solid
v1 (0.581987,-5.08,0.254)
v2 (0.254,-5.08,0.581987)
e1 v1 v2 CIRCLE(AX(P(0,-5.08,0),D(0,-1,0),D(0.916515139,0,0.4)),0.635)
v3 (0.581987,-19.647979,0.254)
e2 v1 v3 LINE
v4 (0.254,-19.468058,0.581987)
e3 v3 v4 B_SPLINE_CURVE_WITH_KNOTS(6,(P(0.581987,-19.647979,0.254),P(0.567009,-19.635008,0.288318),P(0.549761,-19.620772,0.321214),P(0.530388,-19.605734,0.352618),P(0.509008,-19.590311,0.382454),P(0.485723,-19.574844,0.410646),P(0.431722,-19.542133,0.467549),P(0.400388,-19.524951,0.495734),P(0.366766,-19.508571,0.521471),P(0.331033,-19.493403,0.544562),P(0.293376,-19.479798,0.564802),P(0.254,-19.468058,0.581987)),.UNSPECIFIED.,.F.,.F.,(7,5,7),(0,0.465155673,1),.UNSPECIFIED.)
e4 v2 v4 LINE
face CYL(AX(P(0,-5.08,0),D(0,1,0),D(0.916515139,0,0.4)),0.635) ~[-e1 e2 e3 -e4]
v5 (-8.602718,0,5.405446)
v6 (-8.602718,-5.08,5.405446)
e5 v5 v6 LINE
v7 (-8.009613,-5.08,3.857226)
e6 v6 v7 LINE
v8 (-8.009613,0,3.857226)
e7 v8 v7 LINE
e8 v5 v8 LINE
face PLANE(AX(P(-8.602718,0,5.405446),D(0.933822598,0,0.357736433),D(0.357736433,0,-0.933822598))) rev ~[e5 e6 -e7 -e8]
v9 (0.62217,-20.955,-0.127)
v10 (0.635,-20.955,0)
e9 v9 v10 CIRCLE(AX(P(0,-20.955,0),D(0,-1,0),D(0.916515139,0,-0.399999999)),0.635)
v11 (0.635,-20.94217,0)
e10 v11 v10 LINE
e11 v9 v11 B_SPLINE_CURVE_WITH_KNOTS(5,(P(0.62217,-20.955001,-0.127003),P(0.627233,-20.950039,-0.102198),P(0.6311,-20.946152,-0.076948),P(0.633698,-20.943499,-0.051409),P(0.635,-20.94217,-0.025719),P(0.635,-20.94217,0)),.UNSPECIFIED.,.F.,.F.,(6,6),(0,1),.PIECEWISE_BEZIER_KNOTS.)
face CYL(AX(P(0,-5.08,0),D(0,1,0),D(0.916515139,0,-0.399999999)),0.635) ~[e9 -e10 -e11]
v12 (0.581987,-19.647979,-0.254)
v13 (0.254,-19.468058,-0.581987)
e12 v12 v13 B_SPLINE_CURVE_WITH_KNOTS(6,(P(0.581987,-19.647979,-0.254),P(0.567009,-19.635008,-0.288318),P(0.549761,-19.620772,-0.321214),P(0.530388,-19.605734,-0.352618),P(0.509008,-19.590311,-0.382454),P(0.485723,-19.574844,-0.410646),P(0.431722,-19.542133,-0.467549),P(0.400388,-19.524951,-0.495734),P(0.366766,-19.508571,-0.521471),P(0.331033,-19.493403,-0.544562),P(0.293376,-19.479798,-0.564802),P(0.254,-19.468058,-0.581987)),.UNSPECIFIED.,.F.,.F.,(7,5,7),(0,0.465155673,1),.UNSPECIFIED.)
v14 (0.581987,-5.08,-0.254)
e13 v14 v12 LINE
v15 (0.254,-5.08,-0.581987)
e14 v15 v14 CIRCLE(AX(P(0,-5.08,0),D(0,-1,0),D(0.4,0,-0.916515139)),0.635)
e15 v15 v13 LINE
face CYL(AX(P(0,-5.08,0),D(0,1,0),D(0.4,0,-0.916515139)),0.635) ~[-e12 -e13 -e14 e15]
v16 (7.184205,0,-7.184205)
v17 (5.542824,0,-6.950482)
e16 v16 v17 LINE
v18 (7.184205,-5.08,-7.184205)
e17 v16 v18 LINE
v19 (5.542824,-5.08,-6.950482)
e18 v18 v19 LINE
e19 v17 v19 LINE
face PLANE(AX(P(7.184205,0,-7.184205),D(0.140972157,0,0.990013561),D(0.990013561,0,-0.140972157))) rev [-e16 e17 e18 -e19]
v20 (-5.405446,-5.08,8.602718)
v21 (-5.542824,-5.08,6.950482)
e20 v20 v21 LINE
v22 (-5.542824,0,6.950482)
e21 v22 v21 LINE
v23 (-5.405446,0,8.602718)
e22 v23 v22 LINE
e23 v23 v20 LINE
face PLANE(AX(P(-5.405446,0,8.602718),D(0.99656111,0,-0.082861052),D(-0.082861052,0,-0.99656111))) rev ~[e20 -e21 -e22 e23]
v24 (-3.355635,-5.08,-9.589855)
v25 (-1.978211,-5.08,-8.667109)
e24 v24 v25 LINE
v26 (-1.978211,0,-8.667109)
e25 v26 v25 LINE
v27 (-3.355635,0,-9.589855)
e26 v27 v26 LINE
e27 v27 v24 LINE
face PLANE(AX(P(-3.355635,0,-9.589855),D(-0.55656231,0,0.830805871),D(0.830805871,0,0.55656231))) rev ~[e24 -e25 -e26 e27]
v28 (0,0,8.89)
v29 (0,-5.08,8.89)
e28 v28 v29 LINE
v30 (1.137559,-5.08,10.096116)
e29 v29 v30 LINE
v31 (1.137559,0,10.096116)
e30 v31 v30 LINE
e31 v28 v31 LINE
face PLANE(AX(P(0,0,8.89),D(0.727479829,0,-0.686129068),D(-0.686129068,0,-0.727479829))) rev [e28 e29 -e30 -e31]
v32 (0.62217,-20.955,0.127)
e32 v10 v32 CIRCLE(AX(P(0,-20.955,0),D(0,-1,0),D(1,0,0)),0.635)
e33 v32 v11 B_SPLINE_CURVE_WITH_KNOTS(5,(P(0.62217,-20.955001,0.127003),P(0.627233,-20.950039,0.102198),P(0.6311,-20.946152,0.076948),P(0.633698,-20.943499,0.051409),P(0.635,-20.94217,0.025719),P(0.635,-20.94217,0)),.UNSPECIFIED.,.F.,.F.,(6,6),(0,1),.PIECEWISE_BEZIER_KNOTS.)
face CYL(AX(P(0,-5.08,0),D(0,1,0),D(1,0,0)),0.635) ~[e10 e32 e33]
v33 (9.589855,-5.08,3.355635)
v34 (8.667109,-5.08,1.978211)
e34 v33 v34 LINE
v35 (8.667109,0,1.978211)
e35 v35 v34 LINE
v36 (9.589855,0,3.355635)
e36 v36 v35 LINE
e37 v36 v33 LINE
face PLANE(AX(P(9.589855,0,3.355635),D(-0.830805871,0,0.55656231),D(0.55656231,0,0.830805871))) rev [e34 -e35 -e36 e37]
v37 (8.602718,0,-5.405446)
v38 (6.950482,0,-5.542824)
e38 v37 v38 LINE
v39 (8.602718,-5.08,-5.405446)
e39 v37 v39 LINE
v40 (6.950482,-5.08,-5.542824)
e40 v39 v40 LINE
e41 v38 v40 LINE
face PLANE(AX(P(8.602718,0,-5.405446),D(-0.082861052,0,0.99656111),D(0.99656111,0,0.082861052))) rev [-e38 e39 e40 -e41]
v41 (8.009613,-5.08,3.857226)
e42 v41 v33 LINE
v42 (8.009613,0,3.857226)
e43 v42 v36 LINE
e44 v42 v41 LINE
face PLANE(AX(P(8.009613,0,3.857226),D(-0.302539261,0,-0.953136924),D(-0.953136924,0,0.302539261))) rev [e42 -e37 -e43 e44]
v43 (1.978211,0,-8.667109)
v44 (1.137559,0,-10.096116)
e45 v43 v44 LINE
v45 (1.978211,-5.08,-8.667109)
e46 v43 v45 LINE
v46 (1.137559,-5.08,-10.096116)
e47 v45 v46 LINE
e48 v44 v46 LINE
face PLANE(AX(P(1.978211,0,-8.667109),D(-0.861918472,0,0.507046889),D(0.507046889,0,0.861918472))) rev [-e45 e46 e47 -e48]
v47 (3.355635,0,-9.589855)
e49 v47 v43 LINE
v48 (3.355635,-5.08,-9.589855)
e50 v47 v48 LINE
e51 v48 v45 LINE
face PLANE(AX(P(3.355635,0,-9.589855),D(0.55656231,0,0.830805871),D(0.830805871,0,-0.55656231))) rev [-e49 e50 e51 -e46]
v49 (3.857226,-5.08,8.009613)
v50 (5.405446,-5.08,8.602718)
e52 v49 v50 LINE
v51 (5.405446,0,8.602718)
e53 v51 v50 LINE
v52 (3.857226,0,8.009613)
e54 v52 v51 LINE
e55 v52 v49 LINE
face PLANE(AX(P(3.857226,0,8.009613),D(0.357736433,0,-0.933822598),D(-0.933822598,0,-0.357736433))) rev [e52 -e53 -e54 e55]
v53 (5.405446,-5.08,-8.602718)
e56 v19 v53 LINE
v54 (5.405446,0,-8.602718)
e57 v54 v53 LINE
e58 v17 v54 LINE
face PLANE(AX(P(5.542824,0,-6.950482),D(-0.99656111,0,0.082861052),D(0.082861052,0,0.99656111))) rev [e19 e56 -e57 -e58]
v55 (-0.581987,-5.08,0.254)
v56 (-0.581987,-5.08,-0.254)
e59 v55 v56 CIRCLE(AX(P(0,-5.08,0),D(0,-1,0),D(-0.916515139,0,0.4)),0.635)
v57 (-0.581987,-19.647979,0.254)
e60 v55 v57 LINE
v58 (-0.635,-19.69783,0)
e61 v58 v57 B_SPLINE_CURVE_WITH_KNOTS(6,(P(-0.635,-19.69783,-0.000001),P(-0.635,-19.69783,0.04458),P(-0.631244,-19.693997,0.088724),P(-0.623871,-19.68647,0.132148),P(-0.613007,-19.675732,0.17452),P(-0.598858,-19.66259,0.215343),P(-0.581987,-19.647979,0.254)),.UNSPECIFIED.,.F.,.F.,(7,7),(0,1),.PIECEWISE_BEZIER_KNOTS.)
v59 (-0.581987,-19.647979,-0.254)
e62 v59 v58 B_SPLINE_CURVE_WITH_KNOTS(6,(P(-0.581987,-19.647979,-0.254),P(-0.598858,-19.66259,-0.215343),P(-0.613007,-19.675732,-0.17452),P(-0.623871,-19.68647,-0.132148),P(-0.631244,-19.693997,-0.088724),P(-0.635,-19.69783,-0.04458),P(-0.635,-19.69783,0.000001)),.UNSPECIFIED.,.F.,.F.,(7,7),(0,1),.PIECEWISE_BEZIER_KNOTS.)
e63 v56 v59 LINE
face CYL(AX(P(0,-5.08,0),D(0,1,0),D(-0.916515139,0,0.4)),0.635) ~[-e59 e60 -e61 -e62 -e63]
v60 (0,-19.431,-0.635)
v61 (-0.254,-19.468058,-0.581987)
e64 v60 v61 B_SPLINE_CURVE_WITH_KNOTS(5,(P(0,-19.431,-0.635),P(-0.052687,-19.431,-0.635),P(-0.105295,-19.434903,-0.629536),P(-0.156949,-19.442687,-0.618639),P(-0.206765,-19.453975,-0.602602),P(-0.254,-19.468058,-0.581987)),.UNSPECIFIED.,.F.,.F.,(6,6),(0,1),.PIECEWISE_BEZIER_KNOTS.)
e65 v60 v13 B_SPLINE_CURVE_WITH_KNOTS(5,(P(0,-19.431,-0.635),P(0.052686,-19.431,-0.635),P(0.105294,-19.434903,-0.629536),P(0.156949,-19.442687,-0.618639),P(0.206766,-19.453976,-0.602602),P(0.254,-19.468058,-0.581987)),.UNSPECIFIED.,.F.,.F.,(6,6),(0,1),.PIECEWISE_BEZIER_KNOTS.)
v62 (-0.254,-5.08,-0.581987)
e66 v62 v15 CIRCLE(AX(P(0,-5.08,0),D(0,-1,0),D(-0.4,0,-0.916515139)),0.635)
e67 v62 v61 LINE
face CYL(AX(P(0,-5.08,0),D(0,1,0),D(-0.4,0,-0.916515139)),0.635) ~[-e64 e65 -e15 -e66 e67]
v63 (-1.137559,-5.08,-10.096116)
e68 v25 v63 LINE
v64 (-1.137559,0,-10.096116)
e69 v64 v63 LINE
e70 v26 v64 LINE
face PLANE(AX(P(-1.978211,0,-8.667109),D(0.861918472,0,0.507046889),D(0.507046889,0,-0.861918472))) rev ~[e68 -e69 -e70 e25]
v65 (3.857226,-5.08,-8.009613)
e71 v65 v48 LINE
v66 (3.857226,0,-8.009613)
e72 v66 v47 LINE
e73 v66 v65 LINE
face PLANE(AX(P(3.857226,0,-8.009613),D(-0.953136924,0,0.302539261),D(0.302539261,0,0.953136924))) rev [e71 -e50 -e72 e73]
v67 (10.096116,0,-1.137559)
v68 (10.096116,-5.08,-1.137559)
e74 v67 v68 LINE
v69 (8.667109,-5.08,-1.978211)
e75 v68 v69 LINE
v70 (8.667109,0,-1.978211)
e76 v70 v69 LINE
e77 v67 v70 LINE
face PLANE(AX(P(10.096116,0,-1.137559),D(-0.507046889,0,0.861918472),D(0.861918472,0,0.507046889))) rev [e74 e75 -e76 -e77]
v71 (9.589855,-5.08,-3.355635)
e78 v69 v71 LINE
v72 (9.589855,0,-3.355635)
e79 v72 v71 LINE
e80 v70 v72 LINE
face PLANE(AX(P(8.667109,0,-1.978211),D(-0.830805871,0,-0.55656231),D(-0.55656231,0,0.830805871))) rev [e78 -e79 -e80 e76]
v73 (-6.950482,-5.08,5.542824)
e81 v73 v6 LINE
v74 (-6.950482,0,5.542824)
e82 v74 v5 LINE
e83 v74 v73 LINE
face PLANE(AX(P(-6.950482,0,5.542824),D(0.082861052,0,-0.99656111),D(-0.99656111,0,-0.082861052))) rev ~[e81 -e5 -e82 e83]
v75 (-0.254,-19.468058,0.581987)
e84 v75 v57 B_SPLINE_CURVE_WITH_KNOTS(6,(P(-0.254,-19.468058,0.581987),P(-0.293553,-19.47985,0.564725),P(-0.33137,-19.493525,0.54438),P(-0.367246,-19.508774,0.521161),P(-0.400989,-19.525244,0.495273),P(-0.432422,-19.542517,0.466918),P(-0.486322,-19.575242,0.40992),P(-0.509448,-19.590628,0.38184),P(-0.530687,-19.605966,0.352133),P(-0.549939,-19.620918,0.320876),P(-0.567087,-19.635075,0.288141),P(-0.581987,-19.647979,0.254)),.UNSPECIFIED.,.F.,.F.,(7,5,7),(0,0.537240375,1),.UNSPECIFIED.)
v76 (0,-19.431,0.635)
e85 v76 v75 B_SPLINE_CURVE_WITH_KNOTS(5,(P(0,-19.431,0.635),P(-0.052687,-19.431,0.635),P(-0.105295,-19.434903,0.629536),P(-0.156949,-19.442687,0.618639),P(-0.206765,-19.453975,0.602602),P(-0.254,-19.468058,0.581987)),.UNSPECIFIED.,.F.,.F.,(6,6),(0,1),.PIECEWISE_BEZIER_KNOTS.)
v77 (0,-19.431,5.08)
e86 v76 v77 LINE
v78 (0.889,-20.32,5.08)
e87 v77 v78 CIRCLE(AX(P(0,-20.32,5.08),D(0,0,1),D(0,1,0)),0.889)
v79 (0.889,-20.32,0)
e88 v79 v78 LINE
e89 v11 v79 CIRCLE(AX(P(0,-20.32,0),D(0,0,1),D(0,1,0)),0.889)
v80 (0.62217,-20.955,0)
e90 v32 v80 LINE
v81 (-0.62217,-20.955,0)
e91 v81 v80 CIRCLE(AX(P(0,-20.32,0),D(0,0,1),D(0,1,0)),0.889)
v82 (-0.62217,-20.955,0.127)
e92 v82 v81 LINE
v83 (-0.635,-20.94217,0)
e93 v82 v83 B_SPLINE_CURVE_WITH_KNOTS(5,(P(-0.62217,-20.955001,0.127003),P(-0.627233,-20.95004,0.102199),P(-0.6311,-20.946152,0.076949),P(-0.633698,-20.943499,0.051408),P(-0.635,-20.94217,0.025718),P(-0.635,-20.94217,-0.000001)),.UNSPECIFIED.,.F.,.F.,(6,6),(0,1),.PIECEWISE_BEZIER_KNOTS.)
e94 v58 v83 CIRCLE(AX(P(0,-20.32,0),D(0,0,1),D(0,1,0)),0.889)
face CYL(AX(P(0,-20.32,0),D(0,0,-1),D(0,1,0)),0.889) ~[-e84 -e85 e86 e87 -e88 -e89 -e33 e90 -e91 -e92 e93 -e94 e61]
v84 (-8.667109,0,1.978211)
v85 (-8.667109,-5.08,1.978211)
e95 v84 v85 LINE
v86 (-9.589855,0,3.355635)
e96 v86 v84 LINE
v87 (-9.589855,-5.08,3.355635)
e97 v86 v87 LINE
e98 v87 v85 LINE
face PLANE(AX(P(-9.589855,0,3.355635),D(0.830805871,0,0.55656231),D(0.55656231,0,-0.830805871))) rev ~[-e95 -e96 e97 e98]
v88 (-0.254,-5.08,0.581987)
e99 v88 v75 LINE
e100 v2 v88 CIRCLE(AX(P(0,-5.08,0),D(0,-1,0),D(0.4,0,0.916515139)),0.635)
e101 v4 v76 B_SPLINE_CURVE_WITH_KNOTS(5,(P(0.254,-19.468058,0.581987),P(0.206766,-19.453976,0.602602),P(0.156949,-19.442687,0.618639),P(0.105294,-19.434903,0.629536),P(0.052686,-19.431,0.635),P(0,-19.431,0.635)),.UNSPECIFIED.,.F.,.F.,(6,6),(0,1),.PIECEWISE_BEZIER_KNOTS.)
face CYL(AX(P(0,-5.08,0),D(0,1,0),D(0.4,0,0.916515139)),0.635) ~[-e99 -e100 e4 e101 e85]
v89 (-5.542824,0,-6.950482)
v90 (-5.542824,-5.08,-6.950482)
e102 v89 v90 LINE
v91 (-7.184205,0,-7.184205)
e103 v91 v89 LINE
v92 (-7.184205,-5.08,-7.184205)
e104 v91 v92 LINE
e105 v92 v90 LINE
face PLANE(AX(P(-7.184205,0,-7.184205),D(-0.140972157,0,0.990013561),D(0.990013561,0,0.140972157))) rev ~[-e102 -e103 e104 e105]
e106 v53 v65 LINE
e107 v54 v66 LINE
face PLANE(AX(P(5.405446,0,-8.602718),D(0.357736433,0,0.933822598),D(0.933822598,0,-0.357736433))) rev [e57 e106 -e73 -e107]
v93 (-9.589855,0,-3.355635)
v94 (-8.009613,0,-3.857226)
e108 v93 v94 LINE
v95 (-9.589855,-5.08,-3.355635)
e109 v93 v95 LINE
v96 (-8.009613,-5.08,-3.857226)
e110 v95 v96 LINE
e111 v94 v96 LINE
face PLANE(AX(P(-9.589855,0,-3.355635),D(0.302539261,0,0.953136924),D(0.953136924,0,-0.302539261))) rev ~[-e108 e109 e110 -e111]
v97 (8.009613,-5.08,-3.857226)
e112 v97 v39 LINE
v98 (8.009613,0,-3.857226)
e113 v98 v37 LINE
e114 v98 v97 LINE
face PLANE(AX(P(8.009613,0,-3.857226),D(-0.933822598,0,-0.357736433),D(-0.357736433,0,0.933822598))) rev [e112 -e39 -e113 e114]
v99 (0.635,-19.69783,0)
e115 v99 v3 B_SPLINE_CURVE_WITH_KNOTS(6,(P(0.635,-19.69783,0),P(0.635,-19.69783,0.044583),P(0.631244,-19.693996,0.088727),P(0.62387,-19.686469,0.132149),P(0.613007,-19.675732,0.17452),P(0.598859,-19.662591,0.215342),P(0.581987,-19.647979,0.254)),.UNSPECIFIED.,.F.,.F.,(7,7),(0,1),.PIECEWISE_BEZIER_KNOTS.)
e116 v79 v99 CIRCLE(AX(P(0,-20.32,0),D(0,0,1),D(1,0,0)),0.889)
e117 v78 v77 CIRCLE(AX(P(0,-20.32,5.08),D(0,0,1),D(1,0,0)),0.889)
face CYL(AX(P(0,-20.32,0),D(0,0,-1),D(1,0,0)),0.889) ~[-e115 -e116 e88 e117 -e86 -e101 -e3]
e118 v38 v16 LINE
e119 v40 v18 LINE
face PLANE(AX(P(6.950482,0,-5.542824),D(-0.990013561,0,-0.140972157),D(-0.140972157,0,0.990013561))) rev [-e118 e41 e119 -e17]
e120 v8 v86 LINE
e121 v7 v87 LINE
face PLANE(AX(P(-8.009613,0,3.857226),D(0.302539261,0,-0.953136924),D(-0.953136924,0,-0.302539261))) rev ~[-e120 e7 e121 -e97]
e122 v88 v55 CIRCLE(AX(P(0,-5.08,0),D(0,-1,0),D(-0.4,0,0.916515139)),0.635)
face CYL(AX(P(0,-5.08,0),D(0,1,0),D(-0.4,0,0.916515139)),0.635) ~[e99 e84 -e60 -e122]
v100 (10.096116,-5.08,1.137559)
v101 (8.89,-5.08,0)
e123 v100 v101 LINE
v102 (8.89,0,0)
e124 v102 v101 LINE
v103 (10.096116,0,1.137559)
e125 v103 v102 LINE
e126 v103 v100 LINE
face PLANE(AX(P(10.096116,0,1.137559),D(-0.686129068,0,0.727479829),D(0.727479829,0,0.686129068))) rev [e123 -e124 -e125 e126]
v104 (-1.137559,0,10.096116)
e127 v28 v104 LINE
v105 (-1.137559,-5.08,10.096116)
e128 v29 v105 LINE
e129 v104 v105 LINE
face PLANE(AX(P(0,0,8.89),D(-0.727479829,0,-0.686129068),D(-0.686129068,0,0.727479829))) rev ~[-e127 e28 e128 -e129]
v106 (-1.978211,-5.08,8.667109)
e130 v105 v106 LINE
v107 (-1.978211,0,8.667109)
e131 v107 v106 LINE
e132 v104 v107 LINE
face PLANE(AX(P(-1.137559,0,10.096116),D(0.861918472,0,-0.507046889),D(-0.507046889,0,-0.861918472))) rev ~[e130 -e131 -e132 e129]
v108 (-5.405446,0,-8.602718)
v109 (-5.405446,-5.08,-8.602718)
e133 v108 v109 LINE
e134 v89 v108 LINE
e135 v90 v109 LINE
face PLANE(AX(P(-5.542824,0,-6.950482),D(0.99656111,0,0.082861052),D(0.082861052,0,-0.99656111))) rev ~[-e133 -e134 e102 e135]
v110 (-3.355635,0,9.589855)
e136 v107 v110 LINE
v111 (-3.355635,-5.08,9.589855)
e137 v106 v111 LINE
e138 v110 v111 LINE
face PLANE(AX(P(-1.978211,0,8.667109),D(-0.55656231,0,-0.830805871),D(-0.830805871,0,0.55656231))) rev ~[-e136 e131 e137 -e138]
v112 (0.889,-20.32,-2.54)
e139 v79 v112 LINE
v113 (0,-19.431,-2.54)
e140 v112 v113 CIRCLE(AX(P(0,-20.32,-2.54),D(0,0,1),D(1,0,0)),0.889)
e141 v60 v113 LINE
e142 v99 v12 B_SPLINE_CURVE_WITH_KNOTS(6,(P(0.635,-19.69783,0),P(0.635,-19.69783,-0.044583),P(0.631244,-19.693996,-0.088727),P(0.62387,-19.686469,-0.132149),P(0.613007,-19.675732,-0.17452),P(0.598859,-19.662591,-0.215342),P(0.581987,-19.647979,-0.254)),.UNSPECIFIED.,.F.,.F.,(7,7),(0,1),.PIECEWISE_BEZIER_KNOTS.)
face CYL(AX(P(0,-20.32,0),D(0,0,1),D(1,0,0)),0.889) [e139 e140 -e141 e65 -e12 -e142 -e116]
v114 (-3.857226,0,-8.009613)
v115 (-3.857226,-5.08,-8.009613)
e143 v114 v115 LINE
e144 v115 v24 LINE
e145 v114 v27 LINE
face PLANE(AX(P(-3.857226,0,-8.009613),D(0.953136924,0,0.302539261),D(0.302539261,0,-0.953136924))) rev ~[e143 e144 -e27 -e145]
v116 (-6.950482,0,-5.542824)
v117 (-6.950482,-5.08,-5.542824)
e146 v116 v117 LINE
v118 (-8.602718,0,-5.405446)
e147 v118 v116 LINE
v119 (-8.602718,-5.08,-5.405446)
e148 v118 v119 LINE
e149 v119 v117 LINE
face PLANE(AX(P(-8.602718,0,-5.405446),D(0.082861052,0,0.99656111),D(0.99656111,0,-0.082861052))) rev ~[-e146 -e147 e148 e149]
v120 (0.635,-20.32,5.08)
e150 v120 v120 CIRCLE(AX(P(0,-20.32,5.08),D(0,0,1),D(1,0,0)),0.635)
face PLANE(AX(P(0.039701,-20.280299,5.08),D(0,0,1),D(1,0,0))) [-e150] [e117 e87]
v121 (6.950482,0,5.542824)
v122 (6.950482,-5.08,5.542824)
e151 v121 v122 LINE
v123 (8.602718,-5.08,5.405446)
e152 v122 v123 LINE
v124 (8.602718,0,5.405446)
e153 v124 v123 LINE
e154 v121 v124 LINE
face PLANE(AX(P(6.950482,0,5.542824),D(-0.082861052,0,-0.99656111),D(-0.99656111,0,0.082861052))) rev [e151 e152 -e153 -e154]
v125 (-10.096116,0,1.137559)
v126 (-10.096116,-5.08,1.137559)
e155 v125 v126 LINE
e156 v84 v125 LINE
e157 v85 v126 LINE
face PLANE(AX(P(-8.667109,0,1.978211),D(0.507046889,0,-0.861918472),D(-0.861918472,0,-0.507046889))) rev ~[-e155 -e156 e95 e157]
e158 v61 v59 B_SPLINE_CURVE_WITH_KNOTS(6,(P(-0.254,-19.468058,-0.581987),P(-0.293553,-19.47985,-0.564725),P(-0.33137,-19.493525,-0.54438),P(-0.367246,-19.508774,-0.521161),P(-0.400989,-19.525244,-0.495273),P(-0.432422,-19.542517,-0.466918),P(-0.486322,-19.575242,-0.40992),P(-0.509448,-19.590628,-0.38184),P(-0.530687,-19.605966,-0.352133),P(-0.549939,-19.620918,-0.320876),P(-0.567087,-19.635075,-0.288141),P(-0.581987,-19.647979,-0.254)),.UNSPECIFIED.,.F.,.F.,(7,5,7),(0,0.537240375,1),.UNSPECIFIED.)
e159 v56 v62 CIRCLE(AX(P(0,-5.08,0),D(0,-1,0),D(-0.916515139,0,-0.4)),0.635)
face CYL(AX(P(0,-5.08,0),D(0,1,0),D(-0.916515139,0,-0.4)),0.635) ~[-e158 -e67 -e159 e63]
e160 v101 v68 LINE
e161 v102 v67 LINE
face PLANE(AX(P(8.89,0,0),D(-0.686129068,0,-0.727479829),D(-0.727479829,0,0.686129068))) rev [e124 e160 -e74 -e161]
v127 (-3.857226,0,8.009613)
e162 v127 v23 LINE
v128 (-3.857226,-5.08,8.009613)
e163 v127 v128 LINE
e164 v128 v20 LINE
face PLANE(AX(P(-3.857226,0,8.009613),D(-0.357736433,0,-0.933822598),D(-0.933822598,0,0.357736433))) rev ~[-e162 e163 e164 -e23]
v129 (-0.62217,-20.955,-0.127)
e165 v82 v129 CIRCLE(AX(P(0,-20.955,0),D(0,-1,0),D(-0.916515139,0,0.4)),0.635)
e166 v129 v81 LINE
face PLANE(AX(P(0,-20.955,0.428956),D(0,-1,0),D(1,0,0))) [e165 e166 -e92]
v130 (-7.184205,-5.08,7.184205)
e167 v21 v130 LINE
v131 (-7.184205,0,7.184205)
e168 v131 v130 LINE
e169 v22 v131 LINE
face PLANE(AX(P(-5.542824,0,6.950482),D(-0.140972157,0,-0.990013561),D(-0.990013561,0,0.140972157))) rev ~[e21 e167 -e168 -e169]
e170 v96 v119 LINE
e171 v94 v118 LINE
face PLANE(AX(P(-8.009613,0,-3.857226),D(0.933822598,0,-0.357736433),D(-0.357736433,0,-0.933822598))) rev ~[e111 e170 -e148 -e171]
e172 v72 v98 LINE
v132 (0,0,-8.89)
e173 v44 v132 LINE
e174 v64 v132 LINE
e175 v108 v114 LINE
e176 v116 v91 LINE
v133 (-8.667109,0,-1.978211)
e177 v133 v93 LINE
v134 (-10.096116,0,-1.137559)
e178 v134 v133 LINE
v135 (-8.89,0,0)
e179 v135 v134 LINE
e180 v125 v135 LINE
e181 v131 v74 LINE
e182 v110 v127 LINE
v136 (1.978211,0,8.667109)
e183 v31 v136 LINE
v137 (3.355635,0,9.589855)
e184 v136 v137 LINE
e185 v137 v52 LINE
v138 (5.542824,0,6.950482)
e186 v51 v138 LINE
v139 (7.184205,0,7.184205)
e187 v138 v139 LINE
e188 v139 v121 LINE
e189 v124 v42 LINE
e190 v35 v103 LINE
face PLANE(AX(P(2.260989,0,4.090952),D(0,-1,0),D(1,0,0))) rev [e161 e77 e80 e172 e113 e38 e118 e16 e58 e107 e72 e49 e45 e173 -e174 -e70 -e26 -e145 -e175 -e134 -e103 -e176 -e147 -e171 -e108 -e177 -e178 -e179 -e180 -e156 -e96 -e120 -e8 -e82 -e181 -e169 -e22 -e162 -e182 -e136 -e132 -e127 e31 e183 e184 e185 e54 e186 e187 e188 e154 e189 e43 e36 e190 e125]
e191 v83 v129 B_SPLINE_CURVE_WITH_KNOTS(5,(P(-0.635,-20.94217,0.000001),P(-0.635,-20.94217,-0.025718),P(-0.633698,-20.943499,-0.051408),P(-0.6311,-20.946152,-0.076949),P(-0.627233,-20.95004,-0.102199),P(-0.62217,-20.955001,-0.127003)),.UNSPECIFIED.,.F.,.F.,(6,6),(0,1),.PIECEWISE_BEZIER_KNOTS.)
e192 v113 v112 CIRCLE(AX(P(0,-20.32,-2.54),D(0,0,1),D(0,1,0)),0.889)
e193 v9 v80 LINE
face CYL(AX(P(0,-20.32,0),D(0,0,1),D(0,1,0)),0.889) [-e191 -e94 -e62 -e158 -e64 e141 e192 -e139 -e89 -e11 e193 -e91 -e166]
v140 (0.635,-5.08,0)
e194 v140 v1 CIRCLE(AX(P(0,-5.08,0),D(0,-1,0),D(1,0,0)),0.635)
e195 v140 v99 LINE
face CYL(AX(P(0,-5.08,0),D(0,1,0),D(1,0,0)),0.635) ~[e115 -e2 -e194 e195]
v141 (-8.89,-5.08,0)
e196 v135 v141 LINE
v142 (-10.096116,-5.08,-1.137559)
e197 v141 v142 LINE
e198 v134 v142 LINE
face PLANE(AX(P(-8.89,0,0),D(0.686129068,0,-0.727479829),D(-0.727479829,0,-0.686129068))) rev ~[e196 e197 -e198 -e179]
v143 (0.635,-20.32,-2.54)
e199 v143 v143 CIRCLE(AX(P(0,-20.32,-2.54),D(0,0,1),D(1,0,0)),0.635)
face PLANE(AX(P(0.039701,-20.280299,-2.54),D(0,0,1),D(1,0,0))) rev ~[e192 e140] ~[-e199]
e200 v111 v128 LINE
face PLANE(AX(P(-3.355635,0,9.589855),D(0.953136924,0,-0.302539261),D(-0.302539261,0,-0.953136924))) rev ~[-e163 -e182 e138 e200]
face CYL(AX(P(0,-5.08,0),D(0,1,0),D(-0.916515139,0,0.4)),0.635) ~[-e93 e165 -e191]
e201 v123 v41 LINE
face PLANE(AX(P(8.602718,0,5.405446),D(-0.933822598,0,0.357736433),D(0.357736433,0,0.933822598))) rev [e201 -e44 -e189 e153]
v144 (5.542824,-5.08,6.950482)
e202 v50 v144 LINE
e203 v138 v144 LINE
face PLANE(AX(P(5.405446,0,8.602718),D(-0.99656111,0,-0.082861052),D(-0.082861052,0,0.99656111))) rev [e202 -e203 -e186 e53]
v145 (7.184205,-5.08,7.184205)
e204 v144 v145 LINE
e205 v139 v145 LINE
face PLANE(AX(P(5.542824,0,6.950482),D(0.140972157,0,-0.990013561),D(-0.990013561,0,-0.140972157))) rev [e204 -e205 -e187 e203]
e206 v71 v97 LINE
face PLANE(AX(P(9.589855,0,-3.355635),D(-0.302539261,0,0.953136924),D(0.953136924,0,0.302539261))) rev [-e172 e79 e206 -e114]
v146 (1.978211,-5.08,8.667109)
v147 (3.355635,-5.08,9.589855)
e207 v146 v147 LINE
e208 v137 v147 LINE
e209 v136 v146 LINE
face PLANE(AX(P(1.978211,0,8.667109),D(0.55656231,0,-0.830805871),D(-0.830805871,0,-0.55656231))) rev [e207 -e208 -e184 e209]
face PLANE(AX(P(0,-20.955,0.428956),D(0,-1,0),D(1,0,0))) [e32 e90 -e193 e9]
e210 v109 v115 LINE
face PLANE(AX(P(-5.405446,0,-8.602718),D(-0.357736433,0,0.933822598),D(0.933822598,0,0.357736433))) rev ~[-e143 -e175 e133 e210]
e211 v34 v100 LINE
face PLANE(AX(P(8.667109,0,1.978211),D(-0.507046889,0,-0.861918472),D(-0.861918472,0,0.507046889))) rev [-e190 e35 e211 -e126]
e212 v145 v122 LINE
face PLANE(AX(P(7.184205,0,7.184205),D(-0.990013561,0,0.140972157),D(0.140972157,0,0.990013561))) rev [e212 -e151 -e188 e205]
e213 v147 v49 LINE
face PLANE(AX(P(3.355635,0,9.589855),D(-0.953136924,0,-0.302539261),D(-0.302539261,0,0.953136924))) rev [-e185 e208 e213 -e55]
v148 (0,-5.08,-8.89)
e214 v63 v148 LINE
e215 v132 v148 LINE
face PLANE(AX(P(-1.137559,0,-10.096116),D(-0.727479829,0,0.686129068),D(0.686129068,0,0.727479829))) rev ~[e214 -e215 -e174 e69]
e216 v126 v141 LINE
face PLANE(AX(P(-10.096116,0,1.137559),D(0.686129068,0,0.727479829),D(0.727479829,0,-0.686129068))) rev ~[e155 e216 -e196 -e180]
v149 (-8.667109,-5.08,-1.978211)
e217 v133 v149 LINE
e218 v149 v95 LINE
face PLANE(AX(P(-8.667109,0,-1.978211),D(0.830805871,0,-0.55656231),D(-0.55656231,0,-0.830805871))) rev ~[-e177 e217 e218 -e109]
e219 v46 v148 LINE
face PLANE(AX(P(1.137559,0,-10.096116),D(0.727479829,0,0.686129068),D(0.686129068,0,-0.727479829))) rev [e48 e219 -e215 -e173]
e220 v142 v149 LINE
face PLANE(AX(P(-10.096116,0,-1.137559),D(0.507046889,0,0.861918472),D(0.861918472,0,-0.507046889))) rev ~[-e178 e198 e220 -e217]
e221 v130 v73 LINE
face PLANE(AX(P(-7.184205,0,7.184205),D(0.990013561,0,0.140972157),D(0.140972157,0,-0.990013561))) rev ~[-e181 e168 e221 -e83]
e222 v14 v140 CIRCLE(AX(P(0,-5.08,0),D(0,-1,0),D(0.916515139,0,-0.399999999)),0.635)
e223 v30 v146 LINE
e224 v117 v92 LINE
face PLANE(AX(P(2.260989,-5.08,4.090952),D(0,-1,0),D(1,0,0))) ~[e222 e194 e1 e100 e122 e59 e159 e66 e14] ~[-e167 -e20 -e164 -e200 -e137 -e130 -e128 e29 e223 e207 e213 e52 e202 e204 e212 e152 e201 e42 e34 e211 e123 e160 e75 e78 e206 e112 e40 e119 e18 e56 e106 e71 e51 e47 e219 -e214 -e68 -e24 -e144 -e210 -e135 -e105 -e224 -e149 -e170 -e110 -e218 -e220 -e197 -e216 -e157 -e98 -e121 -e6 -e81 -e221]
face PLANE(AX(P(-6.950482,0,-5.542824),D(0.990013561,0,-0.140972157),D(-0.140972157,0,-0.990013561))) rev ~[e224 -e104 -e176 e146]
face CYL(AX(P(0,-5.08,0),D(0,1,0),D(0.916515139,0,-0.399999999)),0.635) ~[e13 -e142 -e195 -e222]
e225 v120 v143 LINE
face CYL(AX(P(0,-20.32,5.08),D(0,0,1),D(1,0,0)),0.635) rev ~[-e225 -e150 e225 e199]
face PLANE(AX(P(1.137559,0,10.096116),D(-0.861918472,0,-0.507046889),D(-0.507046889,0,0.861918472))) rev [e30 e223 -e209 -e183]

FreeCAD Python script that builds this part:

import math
import FreeCAD as App
import Part
import Sketcher
from FreeCAD import Vector
Q = App.Units.Quantity

doc = App.newDocument("Part")
body = doc.addObject("PartDesign::Body", "Body")

# Sketch on XZ plane
sketch1 = doc.addObject("Sketcher::SketchObject", "Sketch")
body.addObject(sketch1)
sketch1.AttachmentSupport = (doc.XZ_Plane, [""])
sketch1.MapMode = "FlatFace"
sketch1.addGeometry([
    Part.LineSegment(Vector(-3.9, 8, 0), Vector(-5.4, 8.6, 0)),  # 0
    Part.LineSegment(Vector(-5.4, 8.6, 0), Vector(-5.5, 7, 0)),  # 1
    Part.LineSegment(Vector(-5.5, 7, 0), Vector(-7.2, 7.2, 0)),  # 2
    Part.LineSegment(Vector(-7.2, 7.2, 0), Vector(-7, 5.5, 0)),  # 3
    Part.LineSegment(Vector(-7, 5.5, 0), Vector(-8.6, 5.4, 0)),  # 4
    Part.LineSegment(Vector(-8.6, 5.4, 0), Vector(-8, 3.9, 0)),  # 5
    Part.LineSegment(Vector(-8, 3.9, 0), Vector(-9.6, 3.4, 0)),  # 6
    Part.LineSegment(Vector(-9.6, 3.4, 0), Vector(-8.7, 2, 0)),  # 7
    Part.LineSegment(Vector(-8.7, 2, 0), Vector(-10.1, 1.1, 0)),  # 8
    Part.LineSegment(Vector(-10.1, 1.1, 0), Vector(-8.9, 0, 0)),  # 9
    Part.LineSegment(Vector(-8.9, 0, 0), Vector(-10.1, -1.1, 0)),  # 10
    Part.LineSegment(Vector(-10.1, -1.1, 0), Vector(-8.7, -2, 0)),  # 11
    Part.LineSegment(Vector(-8.7, -2, 0), Vector(-9.6, -3.4, 0)),  # 12
    Part.LineSegment(Vector(-9.6, -3.4, 0), Vector(-8, -3.9, 0)),  # 13
    Part.LineSegment(Vector(-8, -3.9, 0), Vector(-8.6, -5.4, 0)),  # 14
    Part.LineSegment(Vector(-8.6, -5.4, 0), Vector(-7, -5.5, 0)),  # 15
    Part.LineSegment(Vector(-7, -5.5, 0), Vector(-7.2, -7.2, 0)),  # 16
    Part.LineSegment(Vector(-7.2, -7.2, 0), Vector(-5.5, -7, 0)),  # 17
    Part.LineSegment(Vector(-5.5, -7, 0), Vector(-5.4, -8.6, 0)),  # 18
    Part.LineSegment(Vector(-5.4, -8.6, 0), Vector(-3.9, -8, 0)),  # 19
    Part.LineSegment(Vector(-3.9, -8, 0), Vector(-3.4, -9.6, 0)),  # 20
    Part.LineSegment(Vector(-3.4, -9.6, 0), Vector(-2, -8.7, 0)),  # 21
    Part.LineSegment(Vector(-2, -8.7, 0), Vector(-1.1, -10.1, 0)),  # 22
    Part.LineSegment(Vector(-1.1, -10.1, 0), Vector(0, -8.9, 0)),  # 23
    Part.LineSegment(Vector(0, -8.9, 0), Vector(0, 8.9, 0)),  # 24
    Part.LineSegment(Vector(0, 8.9, 0), Vector(-1.1, 10.1, 0)),  # 25
    Part.LineSegment(Vector(-1.1, 10.1, 0), Vector(-2, 8.7, 0)),  # 26
    Part.LineSegment(Vector(-2, 8.7, 0), Vector(-3.4, 9.6, 0)),  # 27
    Part.LineSegment(Vector(-3.4, 9.6, 0), Vector(-3.9, 8, 0)),  # 28
], False)
sketch1.addConstraint([
    Sketcher.Constraint("Coincident", 0, 2, 1, 1),
    Sketcher.Constraint("Coincident", 1, 2, 2, 1),
    Sketcher.Constraint("Coincident", 2, 2, 3, 1),
    Sketcher.Constraint("Coincident", 3, 2, 4, 1),
    Sketcher.Constraint("Coincident", 4, 2, 5, 1),
    Sketcher.Constraint("Coincident", 5, 2, 6, 1),
    Sketcher.Constraint("Coincident", 6, 2, 7, 1),
    Sketcher.Constraint("Coincident", 7, 2, 8, 1),
    Sketcher.Constraint("Coincident", 8, 2, 9, 1),
    Sketcher.Constraint("Coincident", 9, 2, 10, 1),
    Sketcher.Constraint("Coincident", 10, 2, 11, 1),
    Sketcher.Constraint("Coincident", 11, 2, 12, 1),
    Sketcher.Constraint("Coincident", 12, 2, 13, 1),
    Sketcher.Constraint("Coincident", 13, 2, 14, 1),
    Sketcher.Constraint("Coincident", 14, 2, 15, 1),
    Sketcher.Constraint("Coincident", 15, 2, 16, 1),
    Sketcher.Constraint("Coincident", 16, 2, 17, 1),
    Sketcher.Constraint("Coincident", 17, 2, 18, 1),
    Sketcher.Constraint("Coincident", 18, 2, 19, 1),
    Sketcher.Constraint("Coincident", 19, 2, 20, 1),
    Sketcher.Constraint("Coincident", 20, 2, 21, 1),
    Sketcher.Constraint("Coincident", 21, 2, 22, 1),
    Sketcher.Constraint("Coincident", 22, 2, 23, 1),
    Sketcher.Constraint("Coincident", 23, 2, 24, 1),
    Sketcher.Constraint("Coincident", 24, 2, 25, 1),
    Sketcher.Constraint("Coincident", 25, 2, 26, 1),
    Sketcher.Constraint("Coincident", 26, 2, 27, 1),
    Sketcher.Constraint("Coincident", 27, 2, 28, 1),
    Sketcher.Constraint("Coincident", 28, 2, 0, 1),
    Sketcher.Constraint("Vertical", 24),
    Sketcher.Constraint("Symmetric", 23, 2, 24, 2, -1, 1),
    Sketcher.Constraint("Symmetric", 8, 2, 10, 2, -1),
    Sketcher.Constraint("Symmetric", 7, 2, 11, 2, -1),
    Sketcher.Constraint("Symmetric", 6, 2, 12, 2, -1),
    Sketcher.Constraint("Symmetric", 5, 2, 13, 2, -1),
    Sketcher.Constraint("Symmetric", 4, 2, 14, 2, -1),
    Sketcher.Constraint("Symmetric", 3, 2, 15, 2, -1),
    Sketcher.Constraint("Symmetric", 2, 2, 16, 2, -1),
    Sketcher.Constraint("Symmetric", 1, 2, 17, 2, -1),
    Sketcher.Constraint("Symmetric", 0, 2, 18, 2, -1),
    Sketcher.Constraint("Symmetric", 22, 2, 25, 2, -1),
    Sketcher.Constraint("Symmetric", 21, 2, 26, 2, -1),
    Sketcher.Constraint("Symmetric", 20, 2, 27, 2, -1),
    Sketcher.Constraint("Symmetric", 19, 2, 28, 2, -1),
    Sketcher.Constraint("PointOnObject", 9, 2, -1),
    Sketcher.Constraint("Perpendicular", 0, 14),
    Sketcher.Constraint("Perpendicular", 1, 15),
    Sketcher.Constraint("Perpendicular", 2, 16),
    Sketcher.Constraint("Perpendicular", 6, 20),
    Sketcher.Constraint("Perpendicular", 7, 21),
    Sketcher.Constraint("Perpendicular", 8, 22),
    Sketcher.Constraint("Perpendicular", 9, 23),
    Sketcher.Constraint("Equal", 0, 1),
    Sketcher.Constraint("Equal", 1, 2),
    Sketcher.Constraint("Equal", 2, 3),
    Sketcher.Constraint("Equal", 3, 4),
    Sketcher.Constraint("Equal", 4, 5),
    Sketcher.Constraint("Equal", 5, 6),
    Sketcher.Constraint("Equal", 6, 7),
    Sketcher.Constraint("Equal", 7, 8),
    Sketcher.Constraint("Equal", 8, 9),
    Sketcher.Constraint("Equal", 19, 20),
    Sketcher.Constraint("Equal", 20, 21),
    Sketcher.Constraint("Equal", 21, 22),
    Sketcher.Constraint("Equal", 22, 23),
    Sketcher.Constraint("DistanceY", 24, 1, 24, 2, Q("0.7 in")),
    Sketcher.Constraint("DistanceX", 8, 2, 4, 2, 1.493398),
    Sketcher.Constraint("DistanceY", -1, 1, 1, 2, 6.950482),
    Sketcher.Constraint("DistanceX", 7, 2, -1, 1, 8.667109),
    Sketcher.Constraint("DistanceY", -1, 1, 7, 2, 1.978211),
    Sketcher.Constraint("DistanceY", -1, 1, 8, 2, 1.137559),
    Sketcher.Constraint("DistanceX", 2, 2, 1, 2, 1.641381),
    Sketcher.Constraint("DistanceY", 5, 2, 4, 2, 1.548219),
])
pad1 = doc.addObject("PartDesign::Pad", "Pad")
body.addObject(pad1)
pad1.Profile = sketch1
pad1.Length = Q("0.2 in")
body2 = doc.addObject("PartDesign::Body", "Body001")
doc.recompute()

body2.BaseFeature = body
doc.recompute()

mirroring = doc.addObject("Part::Mirroring", "Mirroring")
mirroring.Source = body
mirroring.Base = Vector(0, 0, 0)
mirroring.Normal = Vector(1, 0, 0)
body3 = doc.addObject("PartDesign::Body", "Body002")
body3.BaseFeature = mirroring
boolean = doc.addObject("PartDesign::Boolean", "Boolean")
body2.addObject(boolean)
boolean.Type = "Fuse"
boolean.addObjects([body3])
doc.recompute()

# Sketch on XZ plane
sketch2 = doc.addObject("Sketcher::SketchObject", "Sketch001")
body2.addObject(sketch2)
sketch2.AttachmentSupport = (doc.getObject("XZ_Plane001"), [""])
sketch2.MapMode = "FlatFace"
sketch2.AttachmentOffset = App.Placement(Vector(0, 0, 0.2 * 25.4), App.Rotation())
sketch2.addGeometry([
    Part.ArcOfCircle(Part.Circle(Vector(0, 0, 0), Vector(0, 0, 1), 0.64), math.radians(66), math.radians(114)),  # 0
    Part.ArcOfCircle(Part.Circle(Vector(0, 0, 0), Vector(0, 0, 1), 0.64), math.radians(114), math.radians(156)),  # 1
    Part.ArcOfCircle(Part.Circle(Vector(0, 0, 0), Vector(0, 0, 1), 0.64), math.radians(156), math.radians(204)),  # 2
    Part.ArcOfCircle(Part.Circle(Vector(0, 0, 0), Vector(0, 0, 1), 0.64), math.radians(-156), math.radians(-114)),  # 3
    Part.ArcOfCircle(Part.Circle(Vector(0, 0, 0), Vector(0, 0, 1), 0.64), math.radians(-114), math.radians(-66)),  # 4
    Part.ArcOfCircle(Part.Circle(Vector(0, 0, 0), Vector(0, 0, 1), 0.64), math.radians(-66), math.radians(-24)),  # 5
    Part.ArcOfCircle(Part.Circle(Vector(0, 0, 0), Vector(0, 0, 1), 0.64), math.radians(-24), math.radians(0)),  # 6
    Part.ArcOfCircle(Part.Circle(Vector(0, 0, 0), Vector(0, 0, 1), 0.64), math.radians(0), math.radians(24)),  # 7
    Part.ArcOfCircle(Part.Circle(Vector(0, 0, 0), Vector(0, 0, 1), 0.64), math.radians(24), math.radians(66)),  # 8
], False)
sketch2.addConstraint([
    Sketcher.Constraint("Tangent", 0, 2, 1, 1),
    Sketcher.Constraint("Tangent", 1, 2, 2, 1),
    Sketcher.Constraint("Tangent", 2, 2, 3, 1),
    Sketcher.Constraint("Tangent", 3, 2, 4, 1),
    Sketcher.Constraint("Tangent", 4, 2, 5, 1),
    Sketcher.Constraint("Tangent", 5, 2, 6, 1),
    Sketcher.Constraint("Tangent", 6, 2, 7, 1),
    Sketcher.Constraint("Tangent", 7, 2, 8, 1),
    Sketcher.Constraint("Tangent", 8, 2, 0, 1),
    Sketcher.Constraint("Coincident", 0, 3, -1, 1),
    Sketcher.Constraint("Coincident", 2, 3, -1, 1),
    Sketcher.Constraint("Coincident", 4, 3, -1, 1),
    Sketcher.Constraint("Coincident", 6, 3, -1, 1),
    Sketcher.Constraint("PointOnObject", 6, 2, -1),
    Sketcher.Constraint("Horizontal", 3, 2, 4, 2),
    Sketcher.Constraint("Horizontal", 2, 2, 5, 2),
    Sketcher.Constraint("Horizontal", 1, 2, 7, 2),
    Sketcher.Constraint("Horizontal", 0, 2, 8, 2),
    Sketcher.Constraint("Vertical", 1, 2, 2, 2),
    Sketcher.Constraint("Vertical", 0, 2, 3, 2),
    Sketcher.Constraint("Radius", 0, Q("0.025 in")),
    Sketcher.Constraint("DistanceX", 0, 2, -1, 1, Q("0.01 in")),
    Sketcher.Constraint("DistanceY", -1, 1, 1, 2, Q("0.01 in")),
])
pad2 = doc.addObject("PartDesign::Pad", "Pad001")
body2.addObject(pad2)
pad2.Profile = sketch2
pad2.Length = Q("0.625 in")

# Sketch on XY plane
sketch3 = doc.addObject("Sketcher::SketchObject", "Sketch002")
body2.addObject(sketch3)
sketch3.AttachmentSupport = (doc.getObject("XY_Plane001"), [""])
sketch3.MapMode = "FlatFace"
sketch3.addGeometry([
    Part.ArcOfCircle(Part.Circle(Vector(0, -20.3, 0), Vector(0, 0, 1), 0.9), math.radians(90), math.radians(360)),
    Part.ArcOfCircle(Part.Circle(Vector(0, -20.3, 0), Vector(0, 0, 1), 0.9), math.radians(0), math.radians(90)),
], False)
sketch3.addConstraint([
    Sketcher.Constraint("Tangent", 0, 1, 1, 2),
    Sketcher.Constraint("Coincident", 1, 1, 0, 2),
    Sketcher.Constraint("PointOnObject", 0, 3, -2),
    Sketcher.Constraint("PointOnObject", 0, 1, -2),
    Sketcher.Constraint("Horizontal", 0, 3, 1, 1),
    Sketcher.Constraint("Radius", 0, Q("0.035 in")),
    Sketcher.Constraint("DistanceY", 0, 3, -1, 1, Q("0.8 in")),
])
pad3 = doc.addObject("PartDesign::Pad", "Pad002")
body2.addObject(pad3)
pad3.Profile = sketch3
pad3.Type = "TwoLengths"
pad3.Length = Q("0.2 in")
pad3.Length2 = Q("0.1 in")

# Sketch on XY plane
sketch4 = doc.addObject("Sketcher::SketchObject", "Sketch003")
body2.addObject(sketch4)
sketch4.AttachmentSupport = (doc.getObject("XY_Plane001"), [""])
sketch4.MapMode = "FlatFace"
sketch4.AttachmentOffset = App.Placement(Vector(0, 0, 0.2 * 25.4), App.Rotation())
sketch4.addGeometry(Part.Circle(Vector(0, -20.3, 0), Vector(0, 0, 1), 0.6), False)
sketch4.addConstraint([
    Sketcher.Constraint("PointOnObject", 0, 3, -2),
    Sketcher.Constraint("Diameter", 0, Q("0.05 in")),
    Sketcher.Constraint("DistanceY", 0, 3, -1, 1, Q("0.8 in")),
])
pocket1 = doc.addObject("PartDesign::Pocket", "Pocket")
body2.addObject(pocket1)
pocket1.Profile = sketch4
pocket1.Type = "ThroughAll"
mirroring.Visibility = False

doc.recompute()
